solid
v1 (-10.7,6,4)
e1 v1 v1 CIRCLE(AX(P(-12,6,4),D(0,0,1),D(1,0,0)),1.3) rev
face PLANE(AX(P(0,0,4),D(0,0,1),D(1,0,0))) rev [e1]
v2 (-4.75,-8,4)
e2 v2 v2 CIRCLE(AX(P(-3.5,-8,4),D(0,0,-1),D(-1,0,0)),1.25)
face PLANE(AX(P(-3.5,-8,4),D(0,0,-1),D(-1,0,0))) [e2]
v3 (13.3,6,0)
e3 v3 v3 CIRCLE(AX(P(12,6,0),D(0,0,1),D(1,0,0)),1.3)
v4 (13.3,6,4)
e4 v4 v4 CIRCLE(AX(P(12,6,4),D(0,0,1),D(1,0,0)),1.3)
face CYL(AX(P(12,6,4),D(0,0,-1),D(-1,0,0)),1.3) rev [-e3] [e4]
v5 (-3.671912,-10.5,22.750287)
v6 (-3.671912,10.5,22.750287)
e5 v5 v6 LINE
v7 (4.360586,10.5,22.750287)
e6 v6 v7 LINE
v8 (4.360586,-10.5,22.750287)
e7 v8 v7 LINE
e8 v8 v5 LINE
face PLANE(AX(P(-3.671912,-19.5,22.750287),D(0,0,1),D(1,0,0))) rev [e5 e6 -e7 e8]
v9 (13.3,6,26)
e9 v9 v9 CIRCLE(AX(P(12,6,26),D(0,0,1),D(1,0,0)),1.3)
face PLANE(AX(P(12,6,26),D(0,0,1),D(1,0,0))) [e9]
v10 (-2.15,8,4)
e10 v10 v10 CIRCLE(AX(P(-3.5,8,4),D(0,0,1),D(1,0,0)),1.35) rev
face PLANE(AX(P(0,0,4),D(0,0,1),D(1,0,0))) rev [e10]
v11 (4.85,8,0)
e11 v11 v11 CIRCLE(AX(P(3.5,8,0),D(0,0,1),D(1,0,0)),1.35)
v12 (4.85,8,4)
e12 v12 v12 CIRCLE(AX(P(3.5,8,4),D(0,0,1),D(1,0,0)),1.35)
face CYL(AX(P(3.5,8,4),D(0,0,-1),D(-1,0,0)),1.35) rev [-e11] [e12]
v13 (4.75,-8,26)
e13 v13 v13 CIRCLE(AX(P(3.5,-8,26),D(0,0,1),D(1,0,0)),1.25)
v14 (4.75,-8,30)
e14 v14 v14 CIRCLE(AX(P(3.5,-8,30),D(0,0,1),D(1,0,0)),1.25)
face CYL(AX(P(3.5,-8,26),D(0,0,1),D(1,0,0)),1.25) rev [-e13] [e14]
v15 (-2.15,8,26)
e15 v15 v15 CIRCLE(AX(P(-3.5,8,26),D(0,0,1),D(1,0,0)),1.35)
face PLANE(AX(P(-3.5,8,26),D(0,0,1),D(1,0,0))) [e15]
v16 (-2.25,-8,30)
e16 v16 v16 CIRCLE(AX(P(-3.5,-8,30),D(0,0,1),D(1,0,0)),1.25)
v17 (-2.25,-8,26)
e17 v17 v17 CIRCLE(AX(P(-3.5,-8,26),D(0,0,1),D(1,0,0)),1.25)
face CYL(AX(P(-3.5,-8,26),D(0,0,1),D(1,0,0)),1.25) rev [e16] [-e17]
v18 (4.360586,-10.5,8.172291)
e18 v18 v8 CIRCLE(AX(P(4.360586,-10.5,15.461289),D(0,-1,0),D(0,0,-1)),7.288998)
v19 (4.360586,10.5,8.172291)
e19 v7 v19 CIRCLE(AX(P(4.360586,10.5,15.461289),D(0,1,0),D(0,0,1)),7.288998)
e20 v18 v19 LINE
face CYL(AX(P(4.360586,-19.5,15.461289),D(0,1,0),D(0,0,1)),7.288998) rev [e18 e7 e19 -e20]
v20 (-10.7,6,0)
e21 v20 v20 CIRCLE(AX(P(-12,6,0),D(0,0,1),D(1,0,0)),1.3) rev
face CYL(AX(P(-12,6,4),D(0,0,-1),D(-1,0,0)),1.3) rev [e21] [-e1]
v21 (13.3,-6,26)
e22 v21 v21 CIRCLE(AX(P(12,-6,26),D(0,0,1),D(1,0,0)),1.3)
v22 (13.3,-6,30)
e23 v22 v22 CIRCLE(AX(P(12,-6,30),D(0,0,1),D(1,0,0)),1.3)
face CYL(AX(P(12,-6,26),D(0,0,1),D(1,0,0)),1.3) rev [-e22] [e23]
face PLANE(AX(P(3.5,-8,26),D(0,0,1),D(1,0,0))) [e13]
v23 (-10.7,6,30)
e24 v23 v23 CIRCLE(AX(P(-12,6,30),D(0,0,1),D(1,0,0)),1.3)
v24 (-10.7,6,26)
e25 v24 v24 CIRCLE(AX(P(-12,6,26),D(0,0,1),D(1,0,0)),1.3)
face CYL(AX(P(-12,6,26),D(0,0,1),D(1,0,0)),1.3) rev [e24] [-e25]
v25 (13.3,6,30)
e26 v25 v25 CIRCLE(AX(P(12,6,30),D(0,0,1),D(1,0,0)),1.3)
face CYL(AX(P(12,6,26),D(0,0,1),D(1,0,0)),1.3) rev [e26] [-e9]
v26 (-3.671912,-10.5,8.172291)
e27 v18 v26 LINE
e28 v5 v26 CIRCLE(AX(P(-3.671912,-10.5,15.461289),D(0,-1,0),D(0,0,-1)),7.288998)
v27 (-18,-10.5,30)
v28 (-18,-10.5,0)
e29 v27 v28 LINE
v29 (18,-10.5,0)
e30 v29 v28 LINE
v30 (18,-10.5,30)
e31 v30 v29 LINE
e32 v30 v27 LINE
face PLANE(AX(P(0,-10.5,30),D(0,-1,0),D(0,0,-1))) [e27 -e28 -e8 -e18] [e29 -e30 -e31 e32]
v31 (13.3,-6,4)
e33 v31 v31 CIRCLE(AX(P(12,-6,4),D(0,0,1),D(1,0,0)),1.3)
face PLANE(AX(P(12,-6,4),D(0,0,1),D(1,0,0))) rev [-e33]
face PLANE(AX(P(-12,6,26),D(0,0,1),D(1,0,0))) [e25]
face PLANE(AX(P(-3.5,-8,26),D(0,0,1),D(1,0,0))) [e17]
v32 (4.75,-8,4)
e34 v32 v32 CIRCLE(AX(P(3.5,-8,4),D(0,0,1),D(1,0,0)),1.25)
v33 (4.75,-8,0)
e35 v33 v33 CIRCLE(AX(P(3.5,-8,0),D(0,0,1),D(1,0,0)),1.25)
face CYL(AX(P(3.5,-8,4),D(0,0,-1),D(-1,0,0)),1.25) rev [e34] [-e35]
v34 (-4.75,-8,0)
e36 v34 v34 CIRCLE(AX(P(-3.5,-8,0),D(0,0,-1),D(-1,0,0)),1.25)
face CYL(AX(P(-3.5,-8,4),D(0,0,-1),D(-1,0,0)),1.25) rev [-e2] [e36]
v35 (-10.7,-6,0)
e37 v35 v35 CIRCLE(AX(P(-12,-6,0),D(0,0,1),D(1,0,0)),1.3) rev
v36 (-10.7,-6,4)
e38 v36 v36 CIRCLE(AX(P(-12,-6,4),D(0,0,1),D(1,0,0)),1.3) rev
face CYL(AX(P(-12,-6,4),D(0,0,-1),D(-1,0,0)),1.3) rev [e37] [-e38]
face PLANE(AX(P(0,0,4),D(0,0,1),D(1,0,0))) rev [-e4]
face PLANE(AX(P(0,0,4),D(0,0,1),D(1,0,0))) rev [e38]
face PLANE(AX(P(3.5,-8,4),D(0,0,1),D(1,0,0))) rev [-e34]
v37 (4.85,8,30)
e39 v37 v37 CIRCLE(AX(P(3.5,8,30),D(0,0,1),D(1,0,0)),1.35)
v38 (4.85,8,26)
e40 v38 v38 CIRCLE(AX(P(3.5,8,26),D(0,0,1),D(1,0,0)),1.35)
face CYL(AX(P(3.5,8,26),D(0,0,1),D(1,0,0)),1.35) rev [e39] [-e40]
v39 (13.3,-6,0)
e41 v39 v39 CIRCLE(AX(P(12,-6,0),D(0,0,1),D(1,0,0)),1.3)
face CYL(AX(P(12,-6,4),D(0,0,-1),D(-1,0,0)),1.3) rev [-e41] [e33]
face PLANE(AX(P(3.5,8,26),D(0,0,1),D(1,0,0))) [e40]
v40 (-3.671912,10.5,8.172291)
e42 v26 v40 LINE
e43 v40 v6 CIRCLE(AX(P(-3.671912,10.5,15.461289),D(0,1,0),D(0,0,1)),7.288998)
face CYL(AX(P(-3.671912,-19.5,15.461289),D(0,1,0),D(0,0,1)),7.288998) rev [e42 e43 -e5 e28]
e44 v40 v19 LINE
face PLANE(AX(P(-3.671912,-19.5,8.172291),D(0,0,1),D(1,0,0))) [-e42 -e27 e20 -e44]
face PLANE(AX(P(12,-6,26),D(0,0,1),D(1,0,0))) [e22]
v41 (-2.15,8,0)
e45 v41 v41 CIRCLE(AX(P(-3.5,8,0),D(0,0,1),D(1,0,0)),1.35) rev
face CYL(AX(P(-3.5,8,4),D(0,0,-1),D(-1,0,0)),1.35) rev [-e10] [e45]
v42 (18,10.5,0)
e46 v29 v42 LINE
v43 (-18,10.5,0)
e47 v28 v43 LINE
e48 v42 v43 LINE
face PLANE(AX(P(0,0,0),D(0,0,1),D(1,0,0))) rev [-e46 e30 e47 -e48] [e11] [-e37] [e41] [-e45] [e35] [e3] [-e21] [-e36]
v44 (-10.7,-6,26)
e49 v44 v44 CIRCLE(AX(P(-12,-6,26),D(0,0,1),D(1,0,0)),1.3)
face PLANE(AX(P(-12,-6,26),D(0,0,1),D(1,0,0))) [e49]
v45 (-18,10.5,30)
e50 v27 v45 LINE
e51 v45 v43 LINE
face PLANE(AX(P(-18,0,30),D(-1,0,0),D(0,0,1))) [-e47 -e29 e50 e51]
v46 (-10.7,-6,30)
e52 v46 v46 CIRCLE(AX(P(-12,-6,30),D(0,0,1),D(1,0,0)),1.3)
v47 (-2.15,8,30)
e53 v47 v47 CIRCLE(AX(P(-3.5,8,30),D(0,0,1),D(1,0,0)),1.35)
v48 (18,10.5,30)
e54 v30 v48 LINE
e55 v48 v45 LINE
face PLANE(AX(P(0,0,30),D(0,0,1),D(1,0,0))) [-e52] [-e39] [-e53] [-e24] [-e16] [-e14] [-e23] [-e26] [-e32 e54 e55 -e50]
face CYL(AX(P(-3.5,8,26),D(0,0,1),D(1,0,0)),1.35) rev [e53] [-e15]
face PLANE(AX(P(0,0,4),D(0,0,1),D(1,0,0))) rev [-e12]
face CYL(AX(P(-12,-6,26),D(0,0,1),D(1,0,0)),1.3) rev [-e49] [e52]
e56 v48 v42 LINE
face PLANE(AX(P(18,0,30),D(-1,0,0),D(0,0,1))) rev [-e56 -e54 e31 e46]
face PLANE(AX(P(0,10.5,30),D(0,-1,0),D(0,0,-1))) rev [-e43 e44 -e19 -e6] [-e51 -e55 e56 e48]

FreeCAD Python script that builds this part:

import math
import FreeCAD as App
import Part
import Sketcher

V = App.Vector

doc = App.newDocument("Part")
body = doc.addObject("PartDesign::Body", "Body")

sketch1 = body.newObject("Sketcher::SketchObject", "Sketch")
sketch1.AttachmentSupport = (doc.getObject("XY_Plane"), [""])
sketch1.MapMode = "FlatFace"
sketch1.addGeometry(Part.LineSegment(V(-18, 10, 0), V(-18, -10, 0)), False)
sketch1.addGeometry(Part.LineSegment(V(-18, -10, 0), V(18, -10, 0)), False)
sketch1.addGeometry(Part.LineSegment(V(18, -10, 0), V(18, 10, 0)), False)
sketch1.addGeometry(Part.LineSegment(V(18, 10, 0), V(-18, 10, 0)), False)
sketch1.addConstraint(Sketcher.Constraint("Coincident", 0, 2, 1, 1))
sketch1.addConstraint(Sketcher.Constraint("Coincident", 1, 2, 2, 1))
sketch1.addConstraint(Sketcher.Constraint("Coincident", 2, 2, 3, 1))
sketch1.addConstraint(Sketcher.Constraint("Coincident", 3, 2, 0, 1))
sketch1.addConstraint(Sketcher.Constraint("Vertical", 0))
sketch1.addConstraint(Sketcher.Constraint("Horizontal", 1))
sketch1.addConstraint(Sketcher.Constraint("Vertical", 2))
sketch1.addConstraint(Sketcher.Constraint("Horizontal", 3))
sketch1.addConstraint(Sketcher.Constraint("Symmetric", 0, 2, 2, 2, -1, 1))
sketch1.addConstraint(Sketcher.Constraint("DistanceX", 1, 1, 1, 2, 36.0))
sketch1.addConstraint(Sketcher.Constraint("DistanceY", 0, 2, 0, 1, 21.0))
pad1 = body.newObject("PartDesign::Pad", "Pad")
pad1.Profile = sketch1
pad1.Length = 30

sketch2 = body.newObject("Sketcher::SketchObject", "Sketch001")
sketch2.AttachmentSupport = (doc.getObject("XY_Plane"), [""])
sketch2.MapMode = "FlatFace"
sketch2.addGeometry(Part.Circle(V(12, 6, 0), V(0, 0, 1), 1.3), False)
sketch2.addGeometry(Part.Circle(V(3.5, 8, 0), V(0, 0, 1), 1.4), False)
sketch2.addGeometry(Part.Circle(V(-3.5, 8, 0), V(0, 0, 1), 1.4), False)
sketch2.addGeometry(Part.Circle(V(-12, 6, 0), V(0, 0, 1), 1.3), False)
sketch2.addGeometry(Part.Circle(V(-12, -6, 0), V(0, 0, 1), 1.3), False)
sketch2.addGeometry(Part.Circle(V(-3.5, -8, 0), V(0, 0, 1), 1.2), False)
sketch2.addGeometry(Part.Circle(V(3.5, -8, 0), V(0, 0, 1), 1.2), False)
sketch2.addGeometry(Part.Circle(V(12, -6, 0), V(0, 0, 1), 1.3), False)
sketch2.addConstraint(Sketcher.Constraint("Equal", 1, 2))
sketch2.addConstraint(Sketcher.Constraint("Equal", 0, 3))
sketch2.addConstraint(Sketcher.Constraint("Equal", 3, 4))
sketch2.addConstraint(Sketcher.Constraint("Equal", 5, 6))
sketch2.addConstraint(Sketcher.Constraint("Equal", 4, 7))
sketch2.addConstraint(Sketcher.Constraint("Symmetric", 0, 3, 4, 3, -1, 1))
sketch2.addConstraint(Sketcher.Constraint("Symmetric", 1, 3, 5, 3, -1, 1))
sketch2.addConstraint(Sketcher.Constraint("Symmetric", 2, 3, 6, 3, -1, 1))
sketch2.addConstraint(Sketcher.Constraint("Symmetric", 3, 3, 7, 3, -1, 1))
sketch2.addConstraint(Sketcher.Constraint("Symmetric", 1, 3, 2, 3, -2))
sketch2.addConstraint(Sketcher.Constraint("Symmetric", 0, 3, 3, 3, -2))
sketch2.addConstraint(Sketcher.Constraint("Diameter", 0, 2.6))
sketch2.addConstraint(Sketcher.Constraint("Diameter", 1, 2.7))
sketch2.addConstraint(Sketcher.Constraint("Diameter", 5, 2.5))
sketch2.addConstraint(Sketcher.Constraint("DistanceX", -1, 1, 0, 3, 12.0))
sketch2.addConstraint(Sketcher.Constraint("DistanceY", -1, 1, 0, 3, 6.0))
sketch2.addConstraint(Sketcher.Constraint("DistanceY", -1, 1, 1, 3, 8.0))
sketch2.addConstraint(Sketcher.Constraint("DistanceX", 2, 3, 1, 3, 7.0))
pocket1 = body.newObject("PartDesign::Pocket", "Pocket")
pocket1.Profile = sketch2
pocket1.Length = 4
pocket1.Reversed = True

sketch3 = body.newObject("Sketcher::SketchObject", "Sketch002")
sketch3.AttachmentSupport = (doc.getObject("XY_Plane"), [""])
sketch3.MapMode = "FlatFace"
sketch3.AttachmentOffset = App.Placement(V(0, 0, 30), App.Rotation())
sketch3.addGeometry(Part.Circle(V(3.5, 8, 0), V(0, 0, 1), 1.4), False)
sketch3.addGeometry(Part.Circle(V(12, 6, 0), V(0, 0, 1), 1.3), False)
sketch3.addGeometry(Part.Circle(V(-3.5, 8, 0), V(0, 0, 1), 1.4), False)
sketch3.addGeometry(Part.Circle(V(-12, 6, 0), V(0, 0, 1), 1.3), False)
sketch3.addGeometry(Part.Circle(V(-12, -6, 0), V(0, 0, 1), 1.3), False)
sketch3.addGeometry(Part.Circle(V(-3.5, -8, 0), V(0, 0, 1), 1.2), False)
sketch3.addGeometry(Part.Circle(V(3.5, -8, 0), V(0, 0, 1), 1.2), False)
sketch3.addGeometry(Part.Circle(V(12, -6, 0), V(0, 0, 1), 1.3), False)
sketch3.addConstraint(Sketcher.Constraint("Equal", 0, 2))
sketch3.addConstraint(Sketcher.Constraint("Equal", 1, 3))
sketch3.addConstraint(Sketcher.Constraint("Equal", 3, 4))
sketch3.addConstraint(Sketcher.Constraint("Equal", 5, 6))
sketch3.addConstraint(Sketcher.Constraint("Equal", 4, 7))
sketch3.addConstraint(Sketcher.Constraint("Symmetric", 1, 3, 4, 3, -1, 1))
sketch3.addConstraint(Sketcher.Constraint("Symmetric", 0, 3, 5, 3, -1, 1))
sketch3.addConstraint(Sketcher.Constraint("Symmetric", 2, 3, 6, 3, -1, 1))
sketch3.addConstraint(Sketcher.Constraint("Symmetric", 3, 3, 7, 3, -1, 1))
sketch3.addConstraint(Sketcher.Constraint("Symmetric", 0, 3, 2, 3, -2))
sketch3.addConstraint(Sketcher.Constraint("Symmetric", 1, 3, 3, 3, -2))
sketch3.addConstraint(Sketcher.Constraint("Diameter", 0, 2.7))
sketch3.addConstraint(Sketcher.Constraint("Diameter", 1, 2.6))
sketch3.addConstraint(Sketcher.Constraint("Diameter", 5, 2.5))
sketch3.addConstraint(Sketcher.Constraint("DistanceY", -1, 1, 0, 3, 8.0))
sketch3.addConstraint(Sketcher.Constraint("DistanceX", -1, 1, 1, 3, 12.0))
sketch3.addConstraint(Sketcher.Constraint("DistanceY", -1, 1, 1, 3, 6.0))
sketch3.addConstraint(Sketcher.Constraint("DistanceX", 2, 3, 0, 3, 7.0))
pocket2 = body.newObject("PartDesign::Pocket", "Pocket001")
pocket2.Profile = sketch3
pocket2.Length = 4

sketch4 = body.newObject("Sketcher::SketchObject", "Sketch003")
sketch4.AttachmentSupport = (doc.getObject("XZ_Plane"), [""])
sketch4.MapMode = "FlatFace"
sketch4.AttachmentOffset = App.Placement(V(0, 0, -10.5), App.Rotation())
sketch4.addGeometry(Part.LineSegment(V(4, 8, 0), V(-4, 8, 0)), False)
sketch4.addGeometry(Part.ArcOfCircle(Part.Circle(V(-4, 15, 0), V(0, 0, 1), 7), math.radians(90), math.radians(270)), False)
sketch4.addGeometry(Part.LineSegment(V(-4, 23, 0), V(4, 23, 0)), False)
sketch4.addGeometry(Part.ArcOfCircle(Part.Circle(V(4, 15, 0), V(0, 0, 1), 7), math.radians(-90), math.radians(90)), False)
sketch4.addConstraint(Sketcher.Constraint("Tangent", 0, 2, 1, 2))
sketch4.addConstraint(Sketcher.Constraint("Tangent", 1, 1, 2, 1))
sketch4.addConstraint(Sketcher.Constraint("Tangent", 2, 2, 3, 2))
sketch4.addConstraint(Sketcher.Constraint("Tangent", 3, 1, 0, 1))
sketch4.addConstraint(Sketcher.Constraint("Horizontal", 0))
sketch4.addConstraint(Sketcher.Constraint("Horizontal", 2))
sketch4.addConstraint(Sketcher.Constraint("Radius", 1, 7.288998))
sketch4.addConstraint(Sketcher.Constraint("DistanceX", 0, 2, 0, 1, 8.032498))
sketch4.addConstraint(Sketcher.Constraint("DistanceX", 1, 3, -1, 1, 3.671912))
sketch4.addConstraint(Sketcher.Constraint("DistanceY", -1, 1, 1, 3, 15.461289))
pocket3 = body.newObject("PartDesign::Pocket", "Pocket002")
pocket3.Profile = sketch4
pocket3.Length = 30
pocket3.Reversed = True

doc.recompute()
